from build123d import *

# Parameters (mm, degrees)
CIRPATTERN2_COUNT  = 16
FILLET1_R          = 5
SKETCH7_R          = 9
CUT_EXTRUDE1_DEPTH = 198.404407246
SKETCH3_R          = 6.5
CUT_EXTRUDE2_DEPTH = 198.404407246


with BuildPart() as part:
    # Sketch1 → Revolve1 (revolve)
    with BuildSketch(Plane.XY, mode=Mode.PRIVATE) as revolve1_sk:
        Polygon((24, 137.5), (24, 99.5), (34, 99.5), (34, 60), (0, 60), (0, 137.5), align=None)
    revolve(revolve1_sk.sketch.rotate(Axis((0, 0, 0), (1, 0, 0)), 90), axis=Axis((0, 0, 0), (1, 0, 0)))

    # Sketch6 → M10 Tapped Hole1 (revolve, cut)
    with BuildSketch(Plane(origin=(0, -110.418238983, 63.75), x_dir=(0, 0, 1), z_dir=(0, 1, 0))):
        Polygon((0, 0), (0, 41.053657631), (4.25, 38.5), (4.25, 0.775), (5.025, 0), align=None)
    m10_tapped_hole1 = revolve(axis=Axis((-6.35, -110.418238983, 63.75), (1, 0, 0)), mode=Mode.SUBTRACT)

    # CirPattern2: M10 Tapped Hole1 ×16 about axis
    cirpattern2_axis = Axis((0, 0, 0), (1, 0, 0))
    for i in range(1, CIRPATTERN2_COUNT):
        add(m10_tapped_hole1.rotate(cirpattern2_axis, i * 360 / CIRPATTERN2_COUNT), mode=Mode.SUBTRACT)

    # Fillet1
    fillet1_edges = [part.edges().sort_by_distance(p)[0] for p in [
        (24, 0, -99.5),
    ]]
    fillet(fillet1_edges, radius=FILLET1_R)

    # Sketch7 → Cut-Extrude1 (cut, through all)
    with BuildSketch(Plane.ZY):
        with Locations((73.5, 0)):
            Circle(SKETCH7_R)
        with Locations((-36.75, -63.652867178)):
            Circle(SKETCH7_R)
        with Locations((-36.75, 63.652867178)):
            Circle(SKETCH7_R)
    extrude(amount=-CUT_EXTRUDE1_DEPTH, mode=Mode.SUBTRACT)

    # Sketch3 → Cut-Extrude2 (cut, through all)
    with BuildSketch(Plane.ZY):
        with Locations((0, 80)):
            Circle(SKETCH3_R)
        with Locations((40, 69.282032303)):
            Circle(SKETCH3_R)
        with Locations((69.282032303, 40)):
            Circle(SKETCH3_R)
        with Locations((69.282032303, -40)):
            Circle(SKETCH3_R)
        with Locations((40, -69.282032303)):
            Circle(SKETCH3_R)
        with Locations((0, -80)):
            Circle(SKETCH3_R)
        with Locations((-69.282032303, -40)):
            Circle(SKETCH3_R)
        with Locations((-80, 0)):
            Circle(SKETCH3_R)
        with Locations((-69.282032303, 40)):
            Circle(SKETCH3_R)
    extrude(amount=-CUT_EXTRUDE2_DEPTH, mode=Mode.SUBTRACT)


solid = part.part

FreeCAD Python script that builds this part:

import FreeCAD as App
import Part
import Sketcher
Q = App.Units.Quantity


def edges_at(feature, points):
    """Names of the edges that pass closest to the given points."""
    edges = feature.Shape.Edges
    near = lambda p: min(range(len(edges)), key=lambda i: edges[i].distToShape(Part.Vertex(*p))[0])
    return sorted({f"Edge{near(p) + 1}" for p in points})


def add_polygon(sketch, points):
    """Adds a closed chain of lines whose ends are joined by coincident constraints."""
    first, n = sketch.GeometryCount, len(points)
    for a, b in zip(points, points[1:] + points[:1]):
        sketch.addGeometry(Part.LineSegment(App.Vector(*a, 0), App.Vector(*b, 0)), False)
    for i in range(n):
        sketch.addConstraint(Sketcher.Constraint("Coincident", first + i, 2, first + (i + 1) % n, 1))

doc = App.newDocument("Part")
body = doc.addObject("PartDesign::Body", "Body")

# Sketch on XY plane
sketch1 = body.newObject("Sketcher::SketchObject", "Sketch")
sketch1.AttachmentSupport = (doc.getObject("XY_Plane"), [""])
sketch1.MapMode = "FlatFace"
add_polygon(sketch1, [(24, 100), (24, 138), (0, 138), (0, 60), (34, 60), (34, 100)])  # lines 0-5
sketch1.addConstraint([
    Sketcher.Constraint("Vertical", 0),
    Sketcher.Constraint("Horizontal", 1),
    Sketcher.Constraint("Vertical", 2),
    Sketcher.Constraint("Horizontal", 3),
    Sketcher.Constraint("Vertical", 4),
    Sketcher.Constraint("Horizontal", 5),
    Sketcher.Constraint("PointOnObject", 1, 2, -2),
    Sketcher.Constraint("DistanceX", 1, 2, 1, 1, 24.0),
    Sketcher.Constraint("DistanceX", 3, 1, 3, 2, 34.0),
    Sketcher.Constraint("DistanceY", 0, 1, 0, 2, 38.0),
    Sketcher.Constraint("DistanceY", 2, 2, 2, 1, 77.5),
    Sketcher.Constraint("DistanceY", -1, 1, 2, 2, 60.0),
])
revolution = body.newObject("PartDesign::Revolution", "Revolution")
revolution.Profile = sketch1
revolution.ReferenceAxis = (sketch1, ["H_Axis"])
revolution.Angle = 360

# Sketch on XZ plane
sketch2 = body.newObject("Sketcher::SketchObject", "Sketch001")
sketch2.AttachmentSupport = (doc.getObject("XZ_Plane"), [""])
sketch2.MapMode = "FlatFace"
sketch2.AttachmentOffset = App.Placement(App.Vector(0, 0, 110.418239), App.Rotation())
add_polygon(sketch2, [(41.1, 63.8), (0, 63.8), (0, 68.8), (0.8, 68), (38.5, 68)])  # lines 0-4
sketch2.addGeometry(Part.LineSegment(App.Vector(0, 63.8, 0), App.Vector(41.1, 63.8, 0)), True)  # axis
sketch2.addConstraint([
    Sketcher.Constraint("Horizontal", 0),
    Sketcher.Constraint("Vertical", 1),
    Sketcher.Constraint("Horizontal", 3),
    Sketcher.Constraint("Horizontal", 5),
    Sketcher.Constraint("Coincident", 5, 1, 0, 2),
    Sketcher.Constraint("PointOnObject", 0, 2, -2),
    Sketcher.Constraint("Equal", 0, 5),
    Sketcher.Constraint("Angle", 2, Q("-45 deg")),
    Sketcher.Constraint("Angle", 4, Q("-59 deg")),
    Sketcher.Constraint("DistanceY", -1, 1, 2, 2, 68.0),
    Sketcher.Constraint("DistanceX", -1, 1, 3, 2, 38.5),
    Sketcher.Constraint("DistanceX", 3, 1, 3, 2, 37.725),
    Sketcher.Constraint("DistanceY", 1, 1, 1, 2, 5.025),
])
groove = body.newObject("PartDesign::Groove", "Groove")
groove.Profile = sketch2
groove.ReferenceAxis = (sketch2, ["Axis0"])
groove.Angle = 360
doc.recompute()

polarpattern = body.newObject("PartDesign::PolarPattern", "PolarPattern")
polarpattern.Originals = [groove]
polarpattern.Axis = (doc.getObject("X_Axis"), [""])
polarpattern.Angle = 360
polarpattern.Occurrences = 16
body.Tip = polarpattern
doc.recompute()

fillet = body.newObject("PartDesign::Fillet", "Fillet")
fillet.Base = (polarpattern, edges_at(polarpattern, [(24, 0, -99.5)]))
fillet.Radius = 5

# Sketch on YZ plane
sketch3 = body.newObject("Sketcher::SketchObject", "Sketch002")
sketch3.AttachmentSupport = (doc.getObject("YZ_Plane"), [""])
sketch3.MapMode = "FlatFace"
sketch3.addGeometry([
    Part.Circle(App.Vector(0, 74, 0), App.Vector(0, 0, 1), 9),
    Part.Circle(App.Vector(-64, -37, 0), App.Vector(0, 0, 1), 9),
    Part.Circle(App.Vector(64, -37, 0), App.Vector(0, 0, 1), 9),
], False)
sketch3.addConstraint([
    Sketcher.Constraint("Equal", 0, 1),
    Sketcher.Constraint("Equal", 1, 2),
    Sketcher.Constraint("Symmetric", 1, 3, 2, 3, -2),
    Sketcher.Constraint("PointOnObject", 0, 3, -2),
    Sketcher.Constraint("Diameter", 0, 18.0),
    Sketcher.Constraint("DistanceY", -1, 1, 0, 3, 73.5),
    Sketcher.Constraint("DistanceY", 1, 3, -1, 1, 36.75),
    Sketcher.Constraint("DistanceX", 1, 3, -1, 1, 63.652867),
])
pocket1 = body.newObject("PartDesign::Pocket", "Pocket")
pocket1.Profile = sketch3
pocket1.Type = "ThroughAll"
pocket1.Reversed = True

# Sketch on YZ plane
sketch4 = body.newObject("Sketcher::SketchObject", "Sketch003")
sketch4.AttachmentSupport = (doc.getObject("YZ_Plane"), [""])
sketch4.MapMode = "FlatFace"
sketch4.addGeometry([
    Part.Circle(App.Vector(80, 0, 0), App.Vector(0, 0, 1), 6),  # 0
    Part.Circle(App.Vector(69, 40, 0), App.Vector(0, 0, 1), 6),  # 1
    Part.Circle(App.Vector(40, 69, 0), App.Vector(0, 0, 1), 6),  # 2
    Part.Circle(App.Vector(-40, 69, 0), App.Vector(0, 0, 1), 6),  # 3
    Part.Circle(App.Vector(-69, 40, 0), App.Vector(0, 0, 1), 6),  # 4
    Part.Circle(App.Vector(-80, 0, 0), App.Vector(0, 0, 1), 6),  # 5
    Part.Circle(App.Vector(-40, -69, 0), App.Vector(0, 0, 1), 6),  # 6
    Part.Circle(App.Vector(0, -80, 0), App.Vector(0, 0, 1), 6),  # 7
    Part.Circle(App.Vector(40, -69, 0), App.Vector(0, 0, 1), 6),  # 8
], False)
sketch4.addConstraint([
    Sketcher.Constraint("Equal", 0, 1),
    Sketcher.Constraint("Equal", 1, 2),
    Sketcher.Constraint("Equal", 2, 3),
    Sketcher.Constraint("Equal", 3, 4),
    Sketcher.Constraint("Equal", 4, 5),
    Sketcher.Constraint("Equal", 5, 6),
    Sketcher.Constraint("Equal", 6, 7),
    Sketcher.Constraint("Equal", 7, 8),
    Sketcher.Constraint("Symmetric", 0, 3, 5, 3, -1, 1),
    Sketcher.Constraint("Symmetric", 2, 3, 6, 3, -1, 1),
    Sketcher.Constraint("Symmetric", 3, 3, 8, 3, -1, 1),
    Sketcher.Constraint("Symmetric", 2, 3, 3, 3, -2),
    Sketcher.Constraint("Symmetric", 1, 3, 4, 3, -2),
    Sketcher.Constraint("PointOnObject", 0, 3, -1),
    Sketcher.Constraint("PointOnObject", 7, 3, -2),
    Sketcher.Constraint("Diameter", 0, 13.0),
    Sketcher.Constraint("DistanceX", -1, 1, 0, 3, 80.0),
    Sketcher.Constraint("DistanceY", -1, 1, 1, 3, 40.0),
    Sketcher.Constraint("DistanceX", -1, 1, 2, 3, 40.0),
    Sketcher.Constraint("DistanceY", 7, 3, -1, 1, 80.0),
    Sketcher.Constraint("DistanceX", -1, 1, 1, 3, 69.282032),
    Sketcher.Constraint("DistanceY", -1, 1, 2, 3, 69.282032),
])
pocket2 = body.newObject("PartDesign::Pocket", "Pocket001")
pocket2.Profile = sketch4
pocket2.Type = "ThroughAll"
pocket2.Reversed = True

doc.recompute()
